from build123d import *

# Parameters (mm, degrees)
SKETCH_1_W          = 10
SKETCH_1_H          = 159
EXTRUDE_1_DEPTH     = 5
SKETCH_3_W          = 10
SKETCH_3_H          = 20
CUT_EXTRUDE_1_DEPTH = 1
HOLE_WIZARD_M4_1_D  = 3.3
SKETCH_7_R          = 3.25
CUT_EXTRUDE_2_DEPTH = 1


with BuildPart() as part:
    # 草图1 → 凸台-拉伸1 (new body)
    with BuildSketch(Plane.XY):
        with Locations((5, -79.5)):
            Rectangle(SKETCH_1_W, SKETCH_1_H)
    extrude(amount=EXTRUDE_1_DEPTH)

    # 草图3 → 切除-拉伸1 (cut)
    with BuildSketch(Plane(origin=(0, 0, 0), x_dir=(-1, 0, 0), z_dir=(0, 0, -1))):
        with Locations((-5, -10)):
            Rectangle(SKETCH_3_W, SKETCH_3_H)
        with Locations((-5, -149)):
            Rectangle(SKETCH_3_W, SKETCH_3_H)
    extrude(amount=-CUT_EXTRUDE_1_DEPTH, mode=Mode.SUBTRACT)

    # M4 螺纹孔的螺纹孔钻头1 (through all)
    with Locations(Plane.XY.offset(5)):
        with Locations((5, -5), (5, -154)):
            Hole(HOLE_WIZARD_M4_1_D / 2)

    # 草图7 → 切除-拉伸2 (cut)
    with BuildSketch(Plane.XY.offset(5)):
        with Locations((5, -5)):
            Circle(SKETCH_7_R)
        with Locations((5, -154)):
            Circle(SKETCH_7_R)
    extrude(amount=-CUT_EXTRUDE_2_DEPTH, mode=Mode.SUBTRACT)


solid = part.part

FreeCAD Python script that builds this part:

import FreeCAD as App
import Part
import Sketcher

V = App.Vector
Q = App.Units.Quantity


def add_polygon(sketch, points):
    """Adds a closed chain of lines whose ends are joined by coincident constraints."""
    first, n = sketch.GeometryCount, len(points)
    for a, b in zip(points, points[1:] + points[:1]):
        sketch.addGeometry(Part.LineSegment(App.Vector(*a, 0), App.Vector(*b, 0)), False)
    for i in range(n):
        sketch.addConstraint(Sketcher.Constraint("Coincident", first + i, 2, first + (i + 1) % n, 1))

doc = App.newDocument("Part")
body = doc.addObject("PartDesign::Body", "Body")

sketch1 = body.newObject("Sketcher::SketchObject", "Sketch")
sketch1.AttachmentSupport = (doc.getObject("XY_Plane"), [""])
sketch1.MapMode = "FlatFace"
add_polygon(sketch1, [(0, 0), (0, -159), (10, -159), (10, 0)])
sketch1.addConstraint([
    Sketcher.Constraint("Vertical", 0),
    Sketcher.Constraint("Horizontal", 1),
    Sketcher.Constraint("Vertical", 2),
    Sketcher.Constraint("Horizontal", 3),
    Sketcher.Constraint("Coincident", 3, 2, -1, 1),
    Sketcher.Constraint("DistanceX", 1, 1, 1, 2, Q("10 mm")),
    Sketcher.Constraint("DistanceY", 0, 2, 0, 1, Q("159 mm")),
])
pad1 = body.newObject("PartDesign::Pad", "Pad")
pad1.Profile = sketch1
pad1.Length = 5

sketch2 = body.newObject("Sketcher::SketchObject", "Sketch001")
sketch2.AttachmentSupport = (doc.getObject("XY_Plane"), [""])
sketch2.MapMode = "FlatFace"
add_polygon(sketch2, [(10, 0), (10, -20), (0, -20), (0, 0)])
add_polygon(sketch2, [(10, -139), (10, -159), (0, -159), (0, -139)])
sketch2.addConstraint([
    Sketcher.Constraint("Vertical", 0),
    Sketcher.Constraint("Horizontal", 1),
    Sketcher.Constraint("Vertical", 2),
    Sketcher.Constraint("Horizontal", 3),
    Sketcher.Constraint("Vertical", 4),
    Sketcher.Constraint("Horizontal", 5),
    Sketcher.Constraint("Vertical", 6),
    Sketcher.Constraint("Horizontal", 7),
    Sketcher.Constraint("Coincident", 2, 2, -1, 1),
    Sketcher.Constraint("PointOnObject", 5, 2, -2),
    Sketcher.Constraint("Vertical", 3, 2, 4, 2),
    Sketcher.Constraint("Equal", 2, 4),
    Sketcher.Constraint("DistanceX", 1, 2, 1, 1, Q("10 mm")),
    Sketcher.Constraint("DistanceY", 0, 2, 0, 1, Q("20 mm")),
    Sketcher.Constraint("DistanceY", 4, 2, -1, 1, Q("159 mm")),
])
pocket1 = body.newObject("PartDesign::Pocket", "Pocket")
pocket1.Profile = sketch2
pocket1.Length = 1
pocket1.Reversed = True

sketch3 = body.newObject("Sketcher::SketchObject", "Sketch002")
sketch3.AttachmentSupport = (doc.getObject("XY_Plane"), [""])
sketch3.MapMode = "FlatFace"
sketch3.AttachmentOffset = App.Placement(V(0, 0, 5), App.Rotation())
sketch3.addGeometry([
    Part.Circle(V(5, -5, 0), V(0, 0, 1), 1.6),
    Part.Circle(V(5, -154, 0), V(0, 0, 1), 1.6),
], False)
sketch3.addConstraint([
    Sketcher.Constraint("Equal", 0, 1),
    Sketcher.Constraint("Vertical", 0, 3, 1, 3),
    Sketcher.Constraint("Diameter", 0, Q("3.3 mm")),
    Sketcher.Constraint("DistanceX", -1, 1, 0, 3, Q("5 mm")),
    Sketcher.Constraint("DistanceY", 0, 3, -1, 1, Q("5 mm")),
    Sketcher.Constraint("DistanceY", 1, 3, -1, 1, Q("154 mm")),
])
doc.recompute()
hole = body.newObject("PartDesign::Hole", "Hole")
hole.Profile = sketch3
hole.ThreadType = "None"
hole.Diameter = 3.3
hole.DepthType = "ThroughAll"

sketch4 = body.newObject("Sketcher::SketchObject", "Sketch003")
sketch4.AttachmentSupport = (doc.getObject("XY_Plane"), [""])
sketch4.MapMode = "FlatFace"
sketch4.AttachmentOffset = App.Placement(V(0, 0, 5), App.Rotation())
sketch4.addGeometry([
    Part.Circle(V(5, -5, 0), V(0, 0, 1), 3.2),
    Part.Circle(V(5, -154, 0), V(0, 0, 1), 3.2),
], False)
sketch4.addConstraint([
    Sketcher.Constraint("Equal", 0, 1),
    Sketcher.Constraint("Vertical", 0, 3, 1, 3),
    Sketcher.Constraint("Diameter", 0, Q("6.5 mm")),
    Sketcher.Constraint("DistanceX", -1, 1, 0, 3, Q("5 mm")),
    Sketcher.Constraint("DistanceY", 0, 3, -1, 1, Q("5 mm")),
    Sketcher.Constraint("DistanceY", 1, 3, -1, 1, Q("154 mm")),
])
pocket2 = body.newObject("PartDesign::Pocket", "Pocket001")
pocket2.Profile = sketch4
pocket2.Length = 1

doc.recompute()
